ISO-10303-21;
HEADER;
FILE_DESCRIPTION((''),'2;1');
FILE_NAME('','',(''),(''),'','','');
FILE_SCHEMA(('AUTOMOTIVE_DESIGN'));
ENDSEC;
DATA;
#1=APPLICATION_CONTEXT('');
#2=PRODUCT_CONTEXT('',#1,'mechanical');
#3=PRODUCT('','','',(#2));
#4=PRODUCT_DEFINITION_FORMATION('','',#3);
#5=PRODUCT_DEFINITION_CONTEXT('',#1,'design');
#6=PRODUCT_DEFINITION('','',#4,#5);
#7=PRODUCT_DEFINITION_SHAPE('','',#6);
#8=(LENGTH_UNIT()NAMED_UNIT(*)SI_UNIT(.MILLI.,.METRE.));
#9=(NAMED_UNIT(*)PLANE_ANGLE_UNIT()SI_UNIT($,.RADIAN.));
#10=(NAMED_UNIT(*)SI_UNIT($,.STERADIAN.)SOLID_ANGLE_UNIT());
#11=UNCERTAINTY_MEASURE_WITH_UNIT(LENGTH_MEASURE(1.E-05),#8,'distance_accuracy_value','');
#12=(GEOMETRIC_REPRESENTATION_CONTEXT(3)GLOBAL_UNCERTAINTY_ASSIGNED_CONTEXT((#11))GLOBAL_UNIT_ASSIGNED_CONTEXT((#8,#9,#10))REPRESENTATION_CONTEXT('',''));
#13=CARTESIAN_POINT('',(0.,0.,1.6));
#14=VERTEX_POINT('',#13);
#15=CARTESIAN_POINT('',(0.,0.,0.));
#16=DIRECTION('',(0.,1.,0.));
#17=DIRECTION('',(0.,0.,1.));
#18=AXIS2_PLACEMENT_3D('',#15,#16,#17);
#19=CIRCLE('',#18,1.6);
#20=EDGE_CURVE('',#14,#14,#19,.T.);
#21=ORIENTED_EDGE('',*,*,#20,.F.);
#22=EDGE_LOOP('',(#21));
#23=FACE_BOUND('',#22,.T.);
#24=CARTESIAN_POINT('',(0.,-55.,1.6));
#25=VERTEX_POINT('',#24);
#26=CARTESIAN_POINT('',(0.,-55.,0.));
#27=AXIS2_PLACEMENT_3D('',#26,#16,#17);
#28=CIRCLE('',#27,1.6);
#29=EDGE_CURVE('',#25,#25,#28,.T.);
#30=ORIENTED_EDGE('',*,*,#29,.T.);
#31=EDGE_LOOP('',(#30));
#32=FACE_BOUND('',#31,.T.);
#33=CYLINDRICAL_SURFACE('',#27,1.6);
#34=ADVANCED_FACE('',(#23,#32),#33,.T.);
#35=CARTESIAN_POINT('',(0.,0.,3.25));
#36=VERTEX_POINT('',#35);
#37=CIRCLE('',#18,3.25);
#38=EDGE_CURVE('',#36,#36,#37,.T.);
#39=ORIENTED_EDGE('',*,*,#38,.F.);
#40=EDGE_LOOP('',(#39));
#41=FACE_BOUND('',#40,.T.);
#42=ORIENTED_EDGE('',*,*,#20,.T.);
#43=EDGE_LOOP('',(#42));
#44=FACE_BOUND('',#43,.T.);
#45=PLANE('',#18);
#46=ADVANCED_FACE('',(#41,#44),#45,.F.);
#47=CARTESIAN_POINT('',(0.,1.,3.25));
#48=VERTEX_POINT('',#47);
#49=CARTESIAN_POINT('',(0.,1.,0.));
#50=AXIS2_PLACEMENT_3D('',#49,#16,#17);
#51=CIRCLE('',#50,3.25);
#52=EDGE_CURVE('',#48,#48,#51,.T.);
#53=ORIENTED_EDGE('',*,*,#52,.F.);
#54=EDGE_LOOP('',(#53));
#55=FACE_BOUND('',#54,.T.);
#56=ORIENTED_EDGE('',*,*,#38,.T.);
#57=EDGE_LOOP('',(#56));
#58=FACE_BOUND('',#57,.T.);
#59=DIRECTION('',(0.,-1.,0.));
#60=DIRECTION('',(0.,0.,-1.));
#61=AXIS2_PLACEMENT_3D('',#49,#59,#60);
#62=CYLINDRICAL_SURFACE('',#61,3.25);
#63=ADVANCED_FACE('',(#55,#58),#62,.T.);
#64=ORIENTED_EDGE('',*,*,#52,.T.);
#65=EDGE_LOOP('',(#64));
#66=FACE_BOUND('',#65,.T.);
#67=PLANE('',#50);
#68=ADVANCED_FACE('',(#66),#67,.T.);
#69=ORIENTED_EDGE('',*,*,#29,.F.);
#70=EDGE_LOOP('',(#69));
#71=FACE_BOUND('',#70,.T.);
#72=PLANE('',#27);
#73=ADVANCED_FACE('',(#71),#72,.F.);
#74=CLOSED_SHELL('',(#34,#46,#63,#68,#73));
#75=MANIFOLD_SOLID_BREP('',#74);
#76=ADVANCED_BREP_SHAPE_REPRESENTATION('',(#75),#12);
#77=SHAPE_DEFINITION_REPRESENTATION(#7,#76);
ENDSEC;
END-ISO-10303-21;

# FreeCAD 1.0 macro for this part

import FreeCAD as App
import Part
import Sketcher

V = App.Vector

doc = App.newDocument("Part")
body = doc.addObject("PartDesign::Body", "Body")

sketch1 = doc.addObject("Sketcher::SketchObject", "Sketch")
body.addObject(sketch1)
sketch1.AttachmentSupport = (doc.XZ_Plane, [""])
sketch1.MapMode = "FlatFace"
sketch1.addGeometry(Part.Circle(V(0, 0, 0), V(0, 0, 1), 3.2), False)
sketch1.addConstraint([
    Sketcher.Constraint("Coincident", 0, 3, -1, 1),
    Sketcher.Constraint("Diameter", 0, 6.5),
])
pad1 = doc.addObject("PartDesign::Pad", "Pad")
body.addObject(pad1)
pad1.Profile = sketch1
pad1.Length = 1
pad1.Reversed = True

sketch2 = doc.addObject("Sketcher::SketchObject", "Sketch001")
body.addObject(sketch2)
sketch2.AttachmentSupport = (doc.XZ_Plane, [""])
sketch2.MapMode = "FlatFace"
sketch2.addGeometry(Part.Circle(V(0, 0, 0), V(0, 0, 1), 1.6), False)
sketch2.addConstraint([
    Sketcher.Constraint("Coincident", 0, 3, -1, 1),
    Sketcher.Constraint("Diameter", 0, 3.2),
])
pad2 = doc.addObject("PartDesign::Pad", "Pad001")
body.addObject(pad2)
pad2.Profile = sketch2
pad2.Length = 55

doc.recompute()
